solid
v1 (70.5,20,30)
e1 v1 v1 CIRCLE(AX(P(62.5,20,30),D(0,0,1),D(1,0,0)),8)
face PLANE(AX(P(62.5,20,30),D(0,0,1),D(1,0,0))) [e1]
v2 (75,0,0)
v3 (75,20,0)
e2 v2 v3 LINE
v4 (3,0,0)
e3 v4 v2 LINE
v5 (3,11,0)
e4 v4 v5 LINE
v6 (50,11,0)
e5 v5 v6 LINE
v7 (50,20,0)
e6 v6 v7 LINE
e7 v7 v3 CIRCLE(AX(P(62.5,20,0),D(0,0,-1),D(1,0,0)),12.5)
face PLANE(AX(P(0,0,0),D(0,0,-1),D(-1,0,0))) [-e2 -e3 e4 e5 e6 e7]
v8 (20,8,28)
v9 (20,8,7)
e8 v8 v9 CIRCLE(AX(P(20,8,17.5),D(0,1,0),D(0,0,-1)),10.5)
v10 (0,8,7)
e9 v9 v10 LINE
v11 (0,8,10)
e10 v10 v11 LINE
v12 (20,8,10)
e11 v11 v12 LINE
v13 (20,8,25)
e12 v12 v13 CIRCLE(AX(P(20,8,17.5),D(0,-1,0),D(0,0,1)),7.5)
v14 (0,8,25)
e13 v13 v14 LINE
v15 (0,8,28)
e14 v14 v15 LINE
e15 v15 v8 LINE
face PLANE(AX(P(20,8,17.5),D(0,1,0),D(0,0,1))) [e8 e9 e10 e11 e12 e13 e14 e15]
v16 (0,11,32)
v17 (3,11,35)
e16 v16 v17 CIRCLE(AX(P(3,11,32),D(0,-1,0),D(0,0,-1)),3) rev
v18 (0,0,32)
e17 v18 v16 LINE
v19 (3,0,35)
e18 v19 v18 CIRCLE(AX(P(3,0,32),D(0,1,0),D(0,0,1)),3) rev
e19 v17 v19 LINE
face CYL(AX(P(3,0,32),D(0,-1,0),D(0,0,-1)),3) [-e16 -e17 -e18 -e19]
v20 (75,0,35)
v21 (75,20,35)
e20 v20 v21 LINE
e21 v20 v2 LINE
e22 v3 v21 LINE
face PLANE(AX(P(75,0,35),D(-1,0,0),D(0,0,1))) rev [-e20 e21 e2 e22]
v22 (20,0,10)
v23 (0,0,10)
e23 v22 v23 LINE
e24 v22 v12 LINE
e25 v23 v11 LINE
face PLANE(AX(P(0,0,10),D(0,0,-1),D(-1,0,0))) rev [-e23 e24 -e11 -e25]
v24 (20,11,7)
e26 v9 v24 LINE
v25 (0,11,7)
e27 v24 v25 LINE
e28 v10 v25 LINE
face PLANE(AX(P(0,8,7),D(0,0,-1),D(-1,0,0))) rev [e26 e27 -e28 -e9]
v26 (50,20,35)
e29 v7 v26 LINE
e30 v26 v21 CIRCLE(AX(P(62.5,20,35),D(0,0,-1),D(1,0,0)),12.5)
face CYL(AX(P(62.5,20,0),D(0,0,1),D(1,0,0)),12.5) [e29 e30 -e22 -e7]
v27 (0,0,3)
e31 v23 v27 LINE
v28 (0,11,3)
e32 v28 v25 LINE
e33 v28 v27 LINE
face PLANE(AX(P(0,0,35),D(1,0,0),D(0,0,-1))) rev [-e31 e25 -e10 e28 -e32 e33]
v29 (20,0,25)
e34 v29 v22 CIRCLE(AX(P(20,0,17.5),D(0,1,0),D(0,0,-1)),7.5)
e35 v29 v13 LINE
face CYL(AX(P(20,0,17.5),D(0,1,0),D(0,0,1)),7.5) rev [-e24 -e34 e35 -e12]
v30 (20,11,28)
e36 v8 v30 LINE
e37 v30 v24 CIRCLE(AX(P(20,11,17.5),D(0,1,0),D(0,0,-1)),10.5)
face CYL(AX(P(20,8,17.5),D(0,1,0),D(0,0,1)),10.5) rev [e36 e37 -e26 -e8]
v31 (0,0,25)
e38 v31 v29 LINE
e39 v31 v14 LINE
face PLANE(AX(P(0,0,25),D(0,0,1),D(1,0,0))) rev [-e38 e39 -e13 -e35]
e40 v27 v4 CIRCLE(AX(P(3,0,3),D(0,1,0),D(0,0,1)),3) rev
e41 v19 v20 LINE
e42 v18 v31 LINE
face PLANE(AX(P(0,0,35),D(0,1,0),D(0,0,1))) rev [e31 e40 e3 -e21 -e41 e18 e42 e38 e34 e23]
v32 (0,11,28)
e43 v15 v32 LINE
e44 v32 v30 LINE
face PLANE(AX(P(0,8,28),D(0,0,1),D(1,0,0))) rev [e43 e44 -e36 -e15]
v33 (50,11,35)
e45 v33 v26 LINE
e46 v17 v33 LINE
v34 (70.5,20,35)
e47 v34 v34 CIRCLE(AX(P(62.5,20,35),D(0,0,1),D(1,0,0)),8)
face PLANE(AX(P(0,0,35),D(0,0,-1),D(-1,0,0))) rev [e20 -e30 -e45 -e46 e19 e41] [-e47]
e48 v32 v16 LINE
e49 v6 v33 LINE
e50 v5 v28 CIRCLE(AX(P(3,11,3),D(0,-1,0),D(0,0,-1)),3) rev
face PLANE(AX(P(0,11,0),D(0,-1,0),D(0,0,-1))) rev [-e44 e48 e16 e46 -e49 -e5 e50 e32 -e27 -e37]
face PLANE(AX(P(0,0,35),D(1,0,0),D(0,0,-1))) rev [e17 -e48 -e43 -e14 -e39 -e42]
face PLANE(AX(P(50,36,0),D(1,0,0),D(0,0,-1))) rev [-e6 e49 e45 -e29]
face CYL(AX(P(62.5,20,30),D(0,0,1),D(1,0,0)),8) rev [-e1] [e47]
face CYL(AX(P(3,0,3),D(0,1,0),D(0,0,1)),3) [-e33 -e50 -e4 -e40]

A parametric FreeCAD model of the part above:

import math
import FreeCAD as App
import Part
import Sketcher
from FreeCAD import Vector


def edges_at(feature, points):
    """Names of the edges that pass closest to the given points."""
    edges = feature.Shape.Edges
    near = lambda p: min(range(len(edges)), key=lambda i: edges[i].distToShape(Part.Vertex(*p))[0])
    return sorted({f"Edge{near(p) + 1}" for p in points})


def add_polygon(sketch, points):
    """Adds a closed chain of lines whose ends are joined by coincident constraints."""
    first, n = sketch.GeometryCount, len(points)
    for a, b in zip(points, points[1:] + points[:1]):
        sketch.addGeometry(Part.LineSegment(App.Vector(*a, 0), App.Vector(*b, 0)), False)
    for i in range(n):
        sketch.addConstraint(Sketcher.Constraint("Coincident", first + i, 2, first + (i + 1) % n, 1))

doc = App.newDocument("Part")
body = doc.addObject("PartDesign::Body", "Body")

sketch1 = body.newObject("Sketcher::SketchObject", "Sketch")
sketch1.AttachmentSupport = (doc.getObject("XY_Plane"), [""])
sketch1.MapMode = "FlatFace"
add_polygon(sketch1, [(0, 36), (0, 0), (75, 0), (75, 36)])
sketch1.addConstraint(Sketcher.Constraint("Vertical", 0))
sketch1.addConstraint(Sketcher.Constraint("Horizontal", 1))
sketch1.addConstraint(Sketcher.Constraint("Vertical", 2))
sketch1.addConstraint(Sketcher.Constraint("Horizontal", 3))
sketch1.addConstraint(Sketcher.Constraint("Coincident", 0, 2, -1, 1))
sketch1.addConstraint(Sketcher.Constraint("DistanceX", 1, 1, 1, 2, 75.0))
sketch1.addConstraint(Sketcher.Constraint("DistanceY", 0, 2, 0, 1, 36.0))
pad1 = body.newObject("PartDesign::Pad", "Pad")
pad1.Profile = sketch1
pad1.Length = 35

sketch2 = body.newObject("Sketcher::SketchObject", "Sketch001")
sketch2.AttachmentSupport = (doc.getObject("XY_Plane"), [""])
sketch2.MapMode = "FlatFace"
sketch2.AttachmentOffset = App.Placement(Vector(0, 0, 35), App.Rotation())
add_polygon(sketch2, [(0, 36), (0, 11), (50, 11), (50, 36)])
sketch2.addConstraint(Sketcher.Constraint("Vertical", 0))
sketch2.addConstraint(Sketcher.Constraint("Horizontal", 1))
sketch2.addConstraint(Sketcher.Constraint("Vertical", 2))
sketch2.addConstraint(Sketcher.Constraint("Horizontal", 3))
sketch2.addConstraint(Sketcher.Constraint("PointOnObject", 0, 2, -2))
sketch2.addConstraint(Sketcher.Constraint("DistanceX", 1, 1, 1, 2, 50.0))
sketch2.addConstraint(Sketcher.Constraint("DistanceY", 0, 2, 0, 1, 25.0))
sketch2.addConstraint(Sketcher.Constraint("DistanceY", -1, 1, 0, 2, 11.0))
pocket1 = body.newObject("PartDesign::Pocket", "Pocket")
pocket1.Profile = sketch2
pocket1.Type = "ThroughAll"

sketch3 = body.newObject("Sketcher::SketchObject", "Sketch002")
sketch3.AttachmentSupport = (doc.getObject("XY_Plane"), [""])
sketch3.MapMode = "FlatFace"
sketch3.AttachmentOffset = App.Placement(Vector(0, 0, 35), App.Rotation())
sketch3.addGeometry(Part.Circle(Vector(62, 20, 0), Vector(0, 0, 1), 8), False)
sketch3.addConstraint(Sketcher.Constraint("Diameter", 0, 16.0))
sketch3.addConstraint(Sketcher.Constraint("DistanceY", -1, 1, 0, 3, 20.0))
sketch3.addConstraint(Sketcher.Constraint("DistanceX", -1, 1, 0, 3, 62.5))
pocket2 = body.newObject("PartDesign::Pocket", "Pocket001")
pocket2.Profile = sketch3
pocket2.Length = 5

sketch4 = body.newObject("Sketcher::SketchObject", "Sketch003")
sketch4.AttachmentSupport = (doc.getObject("XZ_Plane"), [""])
sketch4.MapMode = "FlatFace"
sketch4.AttachmentOffset = App.Placement(Vector(0, 0, -11), App.Rotation())
sketch4.addGeometry(Part.LineSegment(Vector(20, 7, 0), Vector(0, 7, 0)), False)
sketch4.addGeometry(Part.LineSegment(Vector(0, 7, 0), Vector(0, 10, 0)), False)
sketch4.addGeometry(Part.LineSegment(Vector(0, 10, 0), Vector(20, 10, 0)), False)
sketch4.addGeometry(Part.ArcOfCircle(Part.Circle(Vector(20, 17.5, 0), Vector(0, 0, 1), 7.5), math.radians(-90), math.radians(90)), False)
sketch4.addGeometry(Part.LineSegment(Vector(20, 25, 0), Vector(0, 25, 0)), False)
sketch4.addGeometry(Part.LineSegment(Vector(0, 25, 0), Vector(0, 28, 0)), False)
sketch4.addGeometry(Part.LineSegment(Vector(0, 28, 0), Vector(20, 28, 0)), False)
sketch4.addGeometry(Part.ArcOfCircle(Part.Circle(Vector(20, 17.5, 0), Vector(0, 0, 1), 10.5), math.radians(-90), math.radians(90)), False)
sketch4.addConstraint(Sketcher.Constraint("Coincident", 0, 2, 1, 1))
sketch4.addConstraint(Sketcher.Constraint("Coincident", 1, 2, 2, 1))
sketch4.addConstraint(Sketcher.Constraint("Tangent", 2, 2, 3, 1))
sketch4.addConstraint(Sketcher.Constraint("Tangent", 3, 2, 4, 1))
sketch4.addConstraint(Sketcher.Constraint("Coincident", 4, 2, 5, 1))
sketch4.addConstraint(Sketcher.Constraint("Coincident", 5, 2, 6, 1))
sketch4.addConstraint(Sketcher.Constraint("Tangent", 6, 2, 7, 2))
sketch4.addConstraint(Sketcher.Constraint("Tangent", 7, 1, 0, 1))
sketch4.addConstraint(Sketcher.Constraint("Horizontal", 0))
sketch4.addConstraint(Sketcher.Constraint("Vertical", 1))
sketch4.addConstraint(Sketcher.Constraint("Horizontal", 2))
sketch4.addConstraint(Sketcher.Constraint("Horizontal", 4))
sketch4.addConstraint(Sketcher.Constraint("Vertical", 5))
sketch4.addConstraint(Sketcher.Constraint("Horizontal", 6))
sketch4.addConstraint(Sketcher.Constraint("Coincident", 7, 3, 3, 3))
sketch4.addConstraint(Sketcher.Constraint("PointOnObject", 0, 2, -2))
sketch4.addConstraint(Sketcher.Constraint("PointOnObject", 4, 2, -2))
sketch4.addConstraint(Sketcher.Constraint("Radius", 3, 7.5))
sketch4.addConstraint(Sketcher.Constraint("Radius", 7, 10.5))
sketch4.addConstraint(Sketcher.Constraint("DistanceX", 0, 2, 0, 1, 20.0))
sketch4.addConstraint(Sketcher.Constraint("DistanceY", -1, 1, 0, 2, 7.0))
pocket3 = body.newObject("PartDesign::Pocket", "Pocket002")
pocket3.Profile = sketch4
pocket3.Length = 3
pocket3.Reversed = True

sketch5 = body.newObject("Sketcher::SketchObject", "Sketch004")
sketch5.AttachmentSupport = (doc.getObject("XZ_Plane"), [""])
sketch5.MapMode = "FlatFace"
sketch5.AttachmentOffset = App.Placement(Vector(0, 0, -11), App.Rotation())
sketch5.addGeometry(Part.LineSegment(Vector(20, 10, 0), Vector(0, 10, 0)), False)
sketch5.addGeometry(Part.LineSegment(Vector(0, 10, 0), Vector(0, 25, 0)), False)
sketch5.addGeometry(Part.LineSegment(Vector(0, 25, 0), Vector(20, 25, 0)), False)
sketch5.addGeometry(Part.ArcOfCircle(Part.Circle(Vector(20, 18, 0), Vector(0, 0, 1), 8), math.radians(-90), math.radians(90)), False)
sketch5.addConstraint(Sketcher.Constraint("Coincident", 0, 2, 1, 1))
sketch5.addConstraint(Sketcher.Constraint("Coincident", 1, 2, 2, 1))
sketch5.addConstraint(Sketcher.Constraint("Tangent", 2, 2, 3, 2))
sketch5.addConstraint(Sketcher.Constraint("Tangent", 3, 1, 0, 1))
sketch5.addConstraint(Sketcher.Constraint("Horizontal", 0))
sketch5.addConstraint(Sketcher.Constraint("Vertical", 1))
sketch5.addConstraint(Sketcher.Constraint("Horizontal", 2))
sketch5.addConstraint(Sketcher.Constraint("PointOnObject", 0, 2, -2))
sketch5.addConstraint(Sketcher.Constraint("Radius", 3, 7.5))
sketch5.addConstraint(Sketcher.Constraint("DistanceX", 0, 2, 0, 1, 20.0))
sketch5.addConstraint(Sketcher.Constraint("DistanceY", -1, 1, 0, 2, 10.0))
pocket4 = body.newObject("PartDesign::Pocket", "Pocket003")
pocket4.Profile = sketch5
pocket4.Type = "ThroughAll"
pocket4.Midplane = True
doc.recompute()

fillet = body.newObject("PartDesign::Fillet", "Fillet")
fillet.Base = (pocket4, edges_at(pocket4, [(0, 5.5, 0)]))
fillet.Radius = 3
doc.recompute()

fillet2 = body.newObject("PartDesign::Fillet", "Fillet001")
fillet2.Base = (fillet, edges_at(fillet, [(0, 5.5, 35)]))
fillet2.Radius = 3

sketch6 = body.newObject("Sketcher::SketchObject", "Sketch005")
sketch6.AttachmentSupport = (doc.getObject("XY_Plane"), [""])
sketch6.MapMode = "FlatFace"
sketch6.AttachmentOffset = App.Placement(Vector(0, 0, 35), App.Rotation())
sketch6.addGeometry(Part.LineSegment(Vector(50, 36, 0), Vector(50, 20, 0)), False)
sketch6.addGeometry(Part.ArcOfCircle(Part.Circle(Vector(62, 20, 0), Vector(0, 0, 1), 12), math.radians(0), math.radians(180)), False)
sketch6.addGeometry(Part.LineSegment(Vector(75, 20, 0), Vector(75, 36, 0)), False)
sketch6.addGeometry(Part.LineSegment(Vector(75, 36, 0), Vector(50, 36, 0)), False)
sketch6.addConstraint(Sketcher.Constraint("Tangent", 0, 2, 1, 2))
sketch6.addConstraint(Sketcher.Constraint("Tangent", 1, 1, 2, 1))
sketch6.addConstraint(Sketcher.Constraint("Coincident", 2, 2, 3, 1))
sketch6.addConstraint(Sketcher.Constraint("Coincident", 3, 2, 0, 1))
sketch6.addConstraint(Sketcher.Constraint("Vertical", 0))
sketch6.addConstraint(Sketcher.Constraint("Vertical", 2))
sketch6.addConstraint(Sketcher.Constraint("Horizontal", 3))
sketch6.addConstraint(Sketcher.Constraint("Radius", 1, 12.5))
sketch6.addConstraint(Sketcher.Constraint("DistanceY", 0, 2, 0, 1, 16.0))
sketch6.addConstraint(Sketcher.Constraint("DistanceY", -1, 1, 1, 3, 20.0))
sketch6.addConstraint(Sketcher.Constraint("DistanceX", -1, 1, 0, 2, 50.0))
pocket5 = body.newObject("PartDesign::Pocket", "Pocket004")
pocket5.Profile = sketch6
pocket5.Type = "ThroughAll"

doc.recompute()
